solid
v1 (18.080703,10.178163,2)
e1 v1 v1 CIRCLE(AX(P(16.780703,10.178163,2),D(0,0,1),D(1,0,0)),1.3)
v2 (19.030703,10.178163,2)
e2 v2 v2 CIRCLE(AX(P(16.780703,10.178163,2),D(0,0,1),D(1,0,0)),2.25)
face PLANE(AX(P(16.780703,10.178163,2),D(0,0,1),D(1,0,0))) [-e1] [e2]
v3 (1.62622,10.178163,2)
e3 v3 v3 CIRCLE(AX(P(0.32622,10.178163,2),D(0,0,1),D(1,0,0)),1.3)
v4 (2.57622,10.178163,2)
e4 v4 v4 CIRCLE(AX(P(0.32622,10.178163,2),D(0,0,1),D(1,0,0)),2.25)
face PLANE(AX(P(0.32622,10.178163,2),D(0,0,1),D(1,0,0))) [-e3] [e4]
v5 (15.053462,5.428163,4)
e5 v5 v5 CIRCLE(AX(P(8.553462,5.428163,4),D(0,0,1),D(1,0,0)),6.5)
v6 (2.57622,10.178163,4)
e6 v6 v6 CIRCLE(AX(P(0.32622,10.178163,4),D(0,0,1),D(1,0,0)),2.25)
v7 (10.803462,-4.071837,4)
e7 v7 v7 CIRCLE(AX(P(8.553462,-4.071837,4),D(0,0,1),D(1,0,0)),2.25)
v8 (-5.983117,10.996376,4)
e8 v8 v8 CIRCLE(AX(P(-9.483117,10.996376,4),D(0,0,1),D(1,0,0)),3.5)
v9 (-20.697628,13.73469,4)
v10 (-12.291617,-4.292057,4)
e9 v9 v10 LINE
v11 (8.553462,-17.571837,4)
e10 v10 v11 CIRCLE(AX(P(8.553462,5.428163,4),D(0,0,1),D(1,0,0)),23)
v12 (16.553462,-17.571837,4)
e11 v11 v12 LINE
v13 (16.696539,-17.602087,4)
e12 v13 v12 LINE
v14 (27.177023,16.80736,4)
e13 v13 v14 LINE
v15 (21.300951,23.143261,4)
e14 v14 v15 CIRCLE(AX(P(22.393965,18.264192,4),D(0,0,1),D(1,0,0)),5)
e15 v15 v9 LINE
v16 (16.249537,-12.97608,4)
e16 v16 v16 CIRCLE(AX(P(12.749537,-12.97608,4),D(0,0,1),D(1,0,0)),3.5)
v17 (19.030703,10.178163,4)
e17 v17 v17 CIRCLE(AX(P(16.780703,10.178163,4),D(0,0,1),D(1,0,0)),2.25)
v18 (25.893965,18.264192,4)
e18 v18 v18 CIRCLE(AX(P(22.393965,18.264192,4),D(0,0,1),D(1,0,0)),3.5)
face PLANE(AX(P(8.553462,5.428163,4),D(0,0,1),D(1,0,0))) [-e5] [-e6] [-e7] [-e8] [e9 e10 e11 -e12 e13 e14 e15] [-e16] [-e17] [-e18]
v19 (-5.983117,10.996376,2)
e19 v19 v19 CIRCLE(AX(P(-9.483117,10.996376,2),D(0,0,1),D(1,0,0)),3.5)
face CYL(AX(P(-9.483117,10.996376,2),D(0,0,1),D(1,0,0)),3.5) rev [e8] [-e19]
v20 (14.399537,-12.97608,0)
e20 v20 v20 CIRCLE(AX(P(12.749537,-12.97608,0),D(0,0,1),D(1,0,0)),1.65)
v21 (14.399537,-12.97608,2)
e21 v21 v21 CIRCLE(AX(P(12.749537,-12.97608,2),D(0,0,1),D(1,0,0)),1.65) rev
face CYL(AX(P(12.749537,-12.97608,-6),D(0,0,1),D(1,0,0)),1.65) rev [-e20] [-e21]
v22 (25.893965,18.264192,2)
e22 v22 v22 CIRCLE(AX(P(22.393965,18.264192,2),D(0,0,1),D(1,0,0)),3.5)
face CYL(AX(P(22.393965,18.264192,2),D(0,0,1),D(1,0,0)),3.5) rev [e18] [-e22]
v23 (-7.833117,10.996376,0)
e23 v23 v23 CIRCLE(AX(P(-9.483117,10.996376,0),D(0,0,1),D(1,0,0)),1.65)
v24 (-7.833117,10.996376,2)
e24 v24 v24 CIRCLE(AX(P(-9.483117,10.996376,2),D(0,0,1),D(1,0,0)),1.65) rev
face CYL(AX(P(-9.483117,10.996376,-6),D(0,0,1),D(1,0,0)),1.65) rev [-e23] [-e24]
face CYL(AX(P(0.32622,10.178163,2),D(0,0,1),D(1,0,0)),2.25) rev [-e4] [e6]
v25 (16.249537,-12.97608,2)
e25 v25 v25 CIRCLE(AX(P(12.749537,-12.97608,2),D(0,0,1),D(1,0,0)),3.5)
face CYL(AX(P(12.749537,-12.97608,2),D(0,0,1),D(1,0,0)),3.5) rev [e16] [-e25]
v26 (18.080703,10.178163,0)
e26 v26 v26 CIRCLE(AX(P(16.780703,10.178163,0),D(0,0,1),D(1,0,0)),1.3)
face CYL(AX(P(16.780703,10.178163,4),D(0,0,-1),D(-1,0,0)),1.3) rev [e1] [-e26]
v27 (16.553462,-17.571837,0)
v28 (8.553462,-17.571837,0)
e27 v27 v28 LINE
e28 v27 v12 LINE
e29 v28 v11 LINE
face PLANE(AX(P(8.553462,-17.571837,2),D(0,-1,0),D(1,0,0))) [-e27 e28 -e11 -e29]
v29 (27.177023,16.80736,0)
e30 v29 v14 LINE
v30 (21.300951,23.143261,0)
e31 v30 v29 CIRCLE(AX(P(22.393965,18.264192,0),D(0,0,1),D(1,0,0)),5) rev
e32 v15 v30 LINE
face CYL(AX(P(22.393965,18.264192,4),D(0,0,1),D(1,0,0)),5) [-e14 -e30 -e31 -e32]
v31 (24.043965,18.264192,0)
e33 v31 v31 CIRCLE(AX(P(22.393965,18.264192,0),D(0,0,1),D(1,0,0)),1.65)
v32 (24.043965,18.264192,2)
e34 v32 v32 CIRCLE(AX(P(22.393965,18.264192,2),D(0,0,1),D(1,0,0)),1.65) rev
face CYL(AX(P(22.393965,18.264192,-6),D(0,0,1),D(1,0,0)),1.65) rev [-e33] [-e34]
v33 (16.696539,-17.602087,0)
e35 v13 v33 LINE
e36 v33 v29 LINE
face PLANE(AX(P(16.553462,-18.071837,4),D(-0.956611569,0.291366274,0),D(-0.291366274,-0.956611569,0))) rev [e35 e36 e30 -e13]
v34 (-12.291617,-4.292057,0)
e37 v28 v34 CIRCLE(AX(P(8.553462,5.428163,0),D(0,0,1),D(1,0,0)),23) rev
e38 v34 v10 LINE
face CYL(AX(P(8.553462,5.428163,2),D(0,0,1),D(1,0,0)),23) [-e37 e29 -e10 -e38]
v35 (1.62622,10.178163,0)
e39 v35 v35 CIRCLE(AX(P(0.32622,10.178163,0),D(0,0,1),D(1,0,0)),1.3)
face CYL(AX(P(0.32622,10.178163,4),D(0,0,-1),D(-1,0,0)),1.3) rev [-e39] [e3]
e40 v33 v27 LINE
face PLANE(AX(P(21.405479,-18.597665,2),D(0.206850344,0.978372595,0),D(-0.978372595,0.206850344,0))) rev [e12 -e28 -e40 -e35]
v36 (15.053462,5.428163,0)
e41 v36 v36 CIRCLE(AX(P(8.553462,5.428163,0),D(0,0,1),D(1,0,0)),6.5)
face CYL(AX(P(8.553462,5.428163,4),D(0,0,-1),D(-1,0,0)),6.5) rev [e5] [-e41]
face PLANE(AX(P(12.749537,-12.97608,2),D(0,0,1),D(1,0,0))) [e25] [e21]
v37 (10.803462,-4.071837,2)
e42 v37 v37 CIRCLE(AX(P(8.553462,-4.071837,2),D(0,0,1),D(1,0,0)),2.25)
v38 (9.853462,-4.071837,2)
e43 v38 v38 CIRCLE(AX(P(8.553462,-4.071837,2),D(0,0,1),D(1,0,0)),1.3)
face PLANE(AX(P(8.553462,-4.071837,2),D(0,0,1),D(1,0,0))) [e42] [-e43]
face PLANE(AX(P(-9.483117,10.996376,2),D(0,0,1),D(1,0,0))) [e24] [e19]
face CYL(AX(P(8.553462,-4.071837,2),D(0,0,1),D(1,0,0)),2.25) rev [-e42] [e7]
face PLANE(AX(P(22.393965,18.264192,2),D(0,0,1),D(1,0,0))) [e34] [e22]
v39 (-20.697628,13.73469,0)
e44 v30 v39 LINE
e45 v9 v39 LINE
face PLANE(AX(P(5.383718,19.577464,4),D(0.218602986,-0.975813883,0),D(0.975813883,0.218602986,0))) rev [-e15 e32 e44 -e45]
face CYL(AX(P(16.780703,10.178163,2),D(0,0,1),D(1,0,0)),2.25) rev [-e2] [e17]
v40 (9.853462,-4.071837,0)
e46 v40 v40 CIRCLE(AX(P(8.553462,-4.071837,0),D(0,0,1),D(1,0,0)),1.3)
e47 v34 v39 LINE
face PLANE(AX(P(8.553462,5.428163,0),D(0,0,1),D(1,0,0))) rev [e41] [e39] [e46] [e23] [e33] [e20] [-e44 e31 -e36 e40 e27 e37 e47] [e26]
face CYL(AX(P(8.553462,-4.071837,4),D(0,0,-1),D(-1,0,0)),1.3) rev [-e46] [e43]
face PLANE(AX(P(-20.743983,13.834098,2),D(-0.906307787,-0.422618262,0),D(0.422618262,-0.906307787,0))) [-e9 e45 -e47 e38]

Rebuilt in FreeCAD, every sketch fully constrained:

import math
import FreeCAD as App
import Part
import Sketcher

V = App.Vector
Q = App.Units.Quantity


def edges_at(feature, points):
    """Names of the edges that pass closest to the given points."""
    edges = feature.Shape.Edges
    near = lambda p: min(range(len(edges)), key=lambda i: edges[i].distToShape(Part.Vertex(*p))[0])
    return sorted({f"Edge{near(p) + 1}" for p in points})

doc = App.newDocument("Part")
body = doc.addObject("PartDesign::Body", "Body")

# Sketch on XY plane
sketch1 = body.newObject("Sketcher::SketchObject", "Sketch")
sketch1.AttachmentSupport = (doc.getObject("XY_Plane"), [""])
sketch1.MapMode = "FlatFace"
sketch1.addGeometry(Part.LineSegment(V(8.6, -18.1, 0), V(16.6, -18.1, 0)), False)
sketch1.addGeometry(Part.LineSegment(V(16.6, -18.1, 0), V(22.4, 1.2, 0)), False)
sketch1.addGeometry(Part.ArcOfCircle(Part.Circle(V(8.6, 5.4, 0), V(0, 0, 1), 14.5), math.radians(-17), math.radians(103)), False)
sketch1.addGeometry(Part.LineSegment(V(5.4, 19.6, 0), V(-21.2, 13.6, 0)), False)
sketch1.addGeometry(Part.LineSegment(V(-21.2, 13.6, 0), V(-12.7, -4.5, 0)), False)
sketch1.addGeometry(Part.ArcOfCircle(Part.Circle(V(8.6, 5.4, 0), V(0, 0, 1), 23.5), math.radians(-155), math.radians(-90)), False)
sketch1.addGeometry(Part.Circle(V(8.6, -4.1, 0), V(0, 0, 1), 1.3), False)
sketch1.addGeometry(Part.Circle(V(0.3, 10.2, 0), V(0, 0, 1), 1.3), False)
sketch1.addGeometry(Part.Circle(V(8.6, 5.4, 0), V(0, 0, 1), 6.5), False)
sketch1.addGeometry(Part.Circle(V(16.8, 10.2, 0), V(0, 0, 1), 1.3), False)
sketch1.addConstraint(Sketcher.Constraint("Coincident", 0, 2, 1, 1))
sketch1.addConstraint(Sketcher.Constraint("Tangent", 1, 2, 2, 1))
sketch1.addConstraint(Sketcher.Constraint("Tangent", 2, 2, 3, 1))
sketch1.addConstraint(Sketcher.Constraint("Coincident", 3, 2, 4, 1))
sketch1.addConstraint(Sketcher.Constraint("Tangent", 4, 2, 5, 1))
sketch1.addConstraint(Sketcher.Constraint("Tangent", 5, 2, 0, 1))
sketch1.addConstraint(Sketcher.Constraint("Horizontal", 0))
sketch1.addConstraint(Sketcher.Constraint("Coincident", 5, 3, 2, 3))
sketch1.addConstraint(Sketcher.Constraint("Coincident", 8, 3, 2, 3))
sketch1.addConstraint(Sketcher.Constraint("Equal", 6, 7))
sketch1.addConstraint(Sketcher.Constraint("Equal", 7, 9))
sketch1.addConstraint(Sketcher.Constraint("Horizontal", 7, 3, 9, 3))
sketch1.addConstraint(Sketcher.Constraint("Vertical", 5, 3, 6, 3))
sketch1.addConstraint(Sketcher.Constraint("Diameter", 8, 13.0))
sketch1.addConstraint(Sketcher.Constraint("Diameter", 6, 2.6))
sketch1.addConstraint(Sketcher.Constraint("Radius", 2, 14.5))
sketch1.addConstraint(Sketcher.Constraint("Radius", 5, 23.5))
sketch1.addConstraint(Sketcher.Constraint("DistanceX", 0, 1, 0, 2, 8.0))
sketch1.addConstraint(Sketcher.Constraint("Angle", 4, Q("-65 deg")))
sketch1.addConstraint(Sketcher.Constraint("Distance", 4, 20.0))
sketch1.addConstraint(Sketcher.Constraint("DistanceY", 0, 2, 6, 3, 14.0))
sketch1.addConstraint(Sketcher.Constraint("DistanceY", 2, 3, 7, 3, 4.75))
sketch1.addConstraint(Sketcher.Constraint("DistanceX", 7, 3, 2, 2, 5.057498))
sketch1.addConstraint(Sketcher.Constraint("DistanceX", -1, 1, 2, 3, 8.553462))
sketch1.addConstraint(Sketcher.Constraint("DistanceY", -1, 1, 1, 2, 1.203352))
sketch1.addConstraint(Sketcher.Constraint("DistanceX", 2, 3, 9, 3, 8.227241))
pad1 = body.newObject("PartDesign::Pad", "Pad")
pad1.Profile = sketch1
pad1.Length = 4

# Sketch on XY plane
sketch2 = body.newObject("Sketcher::SketchObject", "Sketch001")
sketch2.AttachmentSupport = (doc.getObject("XY_Plane"), [""])
sketch2.MapMode = "FlatFace"
sketch2.AttachmentOffset = App.Placement(V(0, 0, 4), App.Rotation())
sketch2.addGeometry(Part.LineSegment(V(-20.7, 13.8, 0), V(-26.8, 13.8, 0)), False)
sketch2.addGeometry(Part.LineSegment(V(-26.8, 13.8, 0), V(-7.8, -16.7, 0)), False)
sketch2.addGeometry(Part.LineSegment(V(-7.8, -16.7, 0), V(17.3, -20.5, 0)), False)
sketch2.addGeometry(Part.LineSegment(V(17.3, -20.5, 0), V(21.4, -18.6, 0)), False)
sketch2.addGeometry(Part.LineSegment(V(21.4, -18.6, 0), V(16.6, -17.6, 0)), False)
sketch2.addGeometry(Part.LineSegment(V(16.6, -17.6, 0), V(8.6, -17.6, 0)), False)
sketch2.addGeometry(Part.ArcOfCircle(Part.Circle(V(8.6, 5.4, 0), V(0, 0, 1), 23), math.radians(-155), math.radians(-90)), False)
sketch2.addGeometry(Part.LineSegment(V(-12.3, -4.3, 0), V(-20.7, 13.8, 0)), False)
sketch2.addConstraint(Sketcher.Constraint("Coincident", 0, 2, 1, 1))
sketch2.addConstraint(Sketcher.Constraint("Coincident", 1, 2, 2, 1))
sketch2.addConstraint(Sketcher.Constraint("Coincident", 2, 2, 3, 1))
sketch2.addConstraint(Sketcher.Constraint("Coincident", 3, 2, 4, 1))
sketch2.addConstraint(Sketcher.Constraint("Coincident", 4, 2, 5, 1))
sketch2.addConstraint(Sketcher.Constraint("Tangent", 5, 2, 6, 2))
sketch2.addConstraint(Sketcher.Constraint("Tangent", 6, 1, 7, 1))
sketch2.addConstraint(Sketcher.Constraint("Coincident", 7, 2, 0, 1))
sketch2.addConstraint(Sketcher.Constraint("Horizontal", 0))
sketch2.addConstraint(Sketcher.Constraint("Horizontal", 5))
sketch2.addConstraint(Sketcher.Constraint("Perpendicular", 3, 7))
sketch2.addConstraint(Sketcher.Constraint("Radius", 6, 23.0))
sketch2.addConstraint(Sketcher.Constraint("DistanceX", 5, 2, 5, 1, 8.0))
sketch2.addConstraint(Sketcher.Constraint("Angle", 3, Q("25 deg")))
sketch2.addConstraint(Sketcher.Constraint("Distance", 7, 20.0))
sketch2.addConstraint(Sketcher.Constraint("DistanceY", -1, 1, 0, 2, 13.834098))
sketch2.addConstraint(Sketcher.Constraint("DistanceY", 2, 2, 6, 3, 25.9447))
sketch2.addConstraint(Sketcher.Constraint("Distance", 1, 35.935019))
sketch2.addConstraint(Sketcher.Constraint("Distance", 3, 4.54044))
sketch2.addConstraint(Sketcher.Constraint("DistanceX", 0, 2, 0, 1, 6.047788))
sketch2.addConstraint(Sketcher.Constraint("DistanceX", -1, 1, 6, 3, 8.553462))
sketch2.addConstraint(Sketcher.Constraint("DistanceX", -1, 1, 3, 2, 21.405479))
sketch2.addConstraint(Sketcher.Constraint("DistanceX", 1, 2, 6, 3, 16.36395))
pocket1 = body.newObject("PartDesign::Pocket", "Pocket")
pocket1.Profile = sketch2
pocket1.Length = 2

# Sketch on XY plane
sketch3 = body.newObject("Sketcher::SketchObject", "Sketch002")
sketch3.AttachmentSupport = (doc.getObject("XY_Plane"), [""])
sketch3.MapMode = "FlatFace"
sketch3.AttachmentOffset = App.Placement(V(0, 0, 4), App.Rotation())
sketch3.addGeometry(Part.LineSegment(V(16.55, -18.07, 0), V(16.7, -17.6, 0)), False)
sketch3.addGeometry(Part.LineSegment(V(16.7, -17.6, 0), V(16.55, -17.57, 0)), False)
sketch3.addGeometry(Part.LineSegment(V(16.55, -17.57, 0), V(8.55, -17.57, 0)), False)
sketch3.addGeometry(Part.ArcOfCircle(Part.Circle(V(8.55, 5.43, 0), V(0, 0, 1), 23), math.radians(-155), math.radians(-90)), False)
sketch3.addGeometry(Part.LineSegment(V(-12.29, -4.29, 0), V(-20.7, 13.73, 0)), False)
sketch3.addGeometry(Part.LineSegment(V(-20.7, 13.73, 0), V(-21.2, 13.62, 0)), False)
sketch3.addGeometry(Part.LineSegment(V(-21.2, 13.62, 0), V(-12.74, -4.5, 0)), False)
sketch3.addGeometry(Part.ArcOfCircle(Part.Circle(V(8.55, 5.43, 0), V(0, 0, 1), 23.5), math.radians(-155), math.radians(-90)), False)
sketch3.addGeometry(Part.LineSegment(V(8.55, -18.07, 0), V(16.55, -18.07, 0)), False)
sketch3.addConstraint(Sketcher.Constraint("Coincident", 0, 2, 1, 1))
sketch3.addConstraint(Sketcher.Constraint("Coincident", 1, 2, 2, 1))
sketch3.addConstraint(Sketcher.Constraint("Tangent", 2, 2, 3, 2))
sketch3.addConstraint(Sketcher.Constraint("Tangent", 3, 1, 4, 1))
sketch3.addConstraint(Sketcher.Constraint("Coincident", 4, 2, 5, 1))
sketch3.addConstraint(Sketcher.Constraint("Coincident", 5, 2, 6, 1))
sketch3.addConstraint(Sketcher.Constraint("Tangent", 6, 2, 7, 1))
sketch3.addConstraint(Sketcher.Constraint("Tangent", 7, 2, 8, 1))
sketch3.addConstraint(Sketcher.Constraint("Coincident", 8, 2, 0, 1))
sketch3.addConstraint(Sketcher.Constraint("Horizontal", 2))
sketch3.addConstraint(Sketcher.Constraint("Horizontal", 8))
sketch3.addConstraint(Sketcher.Constraint("Coincident", 7, 3, 3, 3))
sketch3.addConstraint(Sketcher.Constraint("Parallel", 4, 6))
sketch3.addConstraint(Sketcher.Constraint("Vertical", 1, 2, 8, 2))
sketch3.addConstraint(Sketcher.Constraint("Radius", 3, 23.0))
sketch3.addConstraint(Sketcher.Constraint("Radius", 7, 23.5))
sketch3.addConstraint(Sketcher.Constraint("DistanceX", 2, 2, 2, 1, 8.0))
sketch3.addConstraint(Sketcher.Constraint("Angle", 4, Q("115 deg")))
sketch3.addConstraint(Sketcher.Constraint("Distance", 6, 20.0))
sketch3.addConstraint(Sketcher.Constraint("DistanceY", 5, 2, 4, 2, 0.111901))
sketch3.addConstraint(Sketcher.Constraint("Distance", 1, 0.14624))
sketch3.addConstraint(Sketcher.Constraint("DistanceX", -1, 1, 3, 3, 8.553462))
sketch3.addConstraint(Sketcher.Constraint("DistanceX", -1, 1, 0, 2, 16.696539))
sketch3.addConstraint(Sketcher.Constraint("DistanceY", -1, 1, 4, 2, 13.73469))
pocket2 = body.newObject("PartDesign::Pocket", "Pocket001")
pocket2.Profile = sketch3
pocket2.Length = 10

# Sketch on XY plane
sketch4 = body.newObject("Sketcher::SketchObject", "Sketch003")
sketch4.AttachmentSupport = (doc.getObject("XY_Plane"), [""])
sketch4.MapMode = "FlatFace"
sketch4.addGeometry(Part.LineSegment(V(30, 25, 0), V(5, 20, 0)), False)
sketch4.addGeometry(Part.ArcOfCircle(Part.Circle(V(9, 5, 0), V(0, 0, 1), 14), math.radians(-17), math.radians(103)), False)
sketch4.addGeometry(Part.LineSegment(V(22, 1, 0), V(30, 25, 0)), False)
sketch4.addConstraint(Sketcher.Constraint("Tangent", 0, 2, 1, 2))
sketch4.addConstraint(Sketcher.Constraint("Tangent", 1, 1, 2, 1))
sketch4.addConstraint(Sketcher.Constraint("Coincident", 2, 2, 0, 1))
sketch4.addConstraint(Sketcher.Constraint("Radius", 1, 14.5))
sketch4.addConstraint(Sketcher.Constraint("DistanceY", 1, 3, 0, 2, 14.149301))
sketch4.addConstraint(Sketcher.Constraint("Distance", 0, 24.896882))
sketch4.addConstraint(Sketcher.Constraint("DistanceX", -1, 1, 1, 3, 8.553462))
sketch4.addConstraint(Sketcher.Constraint("DistanceY", -1, 1, 1, 1, 1.203352))
pad2 = body.newObject("PartDesign::Pad", "Pad001")
pad2.Profile = sketch4
pad2.Length = 4
doc.recompute()

fillet = body.newObject("PartDesign::Fillet", "Fillet")
fillet.Base = (pad2, edges_at(pad2, [(29.678, 25.02, 2)]))
fillet.Radius = 5

# Sketch on XY plane
sketch5 = body.newObject("Sketcher::SketchObject", "Sketch004")
sketch5.AttachmentSupport = (doc.getObject("XY_Plane"), [""])
sketch5.MapMode = "FlatFace"
sketch5.AttachmentOffset = App.Placement(V(0, 0, 4), App.Rotation())
sketch5.addGeometry(Part.Circle(V(22.4, 18.3, 0), V(0, 0, 1), 1.6), False)
sketch5.addGeometry(Part.Circle(V(-9.5, 11, 0), V(0, 0, 1), 1.6), False)
sketch5.addGeometry(Part.Circle(V(12.7, -13, 0), V(0, 0, 1), 1.6), False)
sketch5.addConstraint(Sketcher.Constraint("Equal", 0, 1))
sketch5.addConstraint(Sketcher.Constraint("Equal", 1, 2))
sketch5.addConstraint(Sketcher.Constraint("Diameter", 0, 3.3))
sketch5.addConstraint(Sketcher.Constraint("DistanceY", -1, 1, 0, 3, 18.264192))
sketch5.addConstraint(Sketcher.Constraint("DistanceY", 2, 3, -1, 1, 12.97608))
sketch5.addConstraint(Sketcher.Constraint("DistanceX", 2, 3, 0, 3, 9.644428))
sketch5.addConstraint(Sketcher.Constraint("DistanceX", -1, 1, 0, 3, 22.393965))
sketch5.addConstraint(Sketcher.Constraint("DistanceX", 1, 3, -1, 1, 9.483117))
sketch5.addConstraint(Sketcher.Constraint("DistanceY", -1, 1, 1, 3, 10.996376))
pocket3 = body.newObject("PartDesign::Pocket", "Pocket002")
pocket3.Profile = sketch5
pocket3.Length = 10

# Sketch on XY plane
sketch6 = body.newObject("Sketcher::SketchObject", "Sketch005")
sketch6.AttachmentSupport = (doc.getObject("XY_Plane"), [""])
sketch6.MapMode = "FlatFace"
sketch6.AttachmentOffset = App.Placement(V(0, 0, 4), App.Rotation())
sketch6.addGeometry(Part.Circle(V(22.4, 18.3, 0), V(0, 0, 1), 3.5), False)
sketch6.addGeometry(Part.Circle(V(-9.5, 11, 0), V(0, 0, 1), 3.5), False)
sketch6.addGeometry(Part.Circle(V(12.7, -13, 0), V(0, 0, 1), 3.5), False)
sketch6.addGeometry(Part.Circle(V(8.6, -4.1, 0), V(0, 0, 1), 2.2), False)
sketch6.addGeometry(Part.Circle(V(16.8, 10.2, 0), V(0, 0, 1), 2.2), False)
sketch6.addGeometry(Part.Circle(V(0.3, 10.2, 0), V(0, 0, 1), 2.2), False)
sketch6.addConstraint(Sketcher.Constraint("Equal", 0, 1))
sketch6.addConstraint(Sketcher.Constraint("Equal", 1, 2))
sketch6.addConstraint(Sketcher.Constraint("Equal", 3, 4))
sketch6.addConstraint(Sketcher.Constraint("Equal", 4, 5))
sketch6.addConstraint(Sketcher.Constraint("Horizontal", 4, 3, 5, 3))
sketch6.addConstraint(Sketcher.Constraint("Diameter", 0, 7.0))
sketch6.addConstraint(Sketcher.Constraint("Diameter", 3, 4.5))
sketch6.addConstraint(Sketcher.Constraint("DistanceY", 3, 3, 4, 3, 14.25))
sketch6.addConstraint(Sketcher.Constraint("DistanceY", -1, 1, 0, 3, 18.264192))
sketch6.addConstraint(Sketcher.Constraint("DistanceY", 2, 3, -1, 1, 12.97608))
sketch6.addConstraint(Sketcher.Constraint("DistanceX", -1, 1, 3, 3, 8.553462))
sketch6.addConstraint(Sketcher.Constraint("DistanceX", -1, 1, 5, 3, 0.32622))
sketch6.addConstraint(Sketcher.Constraint("DistanceX", 2, 3, 0, 3, 9.644428))
sketch6.addConstraint(Sketcher.Constraint("DistanceX", 1, 3, 3, 3, 18.036579))
sketch6.addConstraint(Sketcher.Constraint("DistanceY", 3, 3, 0, 3, 22.336029))
sketch6.addConstraint(Sketcher.Constraint("DistanceX", 3, 3, 4, 3, 8.227241))
sketch6.addConstraint(Sketcher.Constraint("DistanceX", -1, 1, 0, 3, 22.393965))
sketch6.addConstraint(Sketcher.Constraint("DistanceY", -1, 1, 1, 3, 10.996376))
pocket4 = body.newObject("PartDesign::Pocket", "Pocket003")
pocket4.Profile = sketch6
pocket4.Length = 2

doc.recompute()
